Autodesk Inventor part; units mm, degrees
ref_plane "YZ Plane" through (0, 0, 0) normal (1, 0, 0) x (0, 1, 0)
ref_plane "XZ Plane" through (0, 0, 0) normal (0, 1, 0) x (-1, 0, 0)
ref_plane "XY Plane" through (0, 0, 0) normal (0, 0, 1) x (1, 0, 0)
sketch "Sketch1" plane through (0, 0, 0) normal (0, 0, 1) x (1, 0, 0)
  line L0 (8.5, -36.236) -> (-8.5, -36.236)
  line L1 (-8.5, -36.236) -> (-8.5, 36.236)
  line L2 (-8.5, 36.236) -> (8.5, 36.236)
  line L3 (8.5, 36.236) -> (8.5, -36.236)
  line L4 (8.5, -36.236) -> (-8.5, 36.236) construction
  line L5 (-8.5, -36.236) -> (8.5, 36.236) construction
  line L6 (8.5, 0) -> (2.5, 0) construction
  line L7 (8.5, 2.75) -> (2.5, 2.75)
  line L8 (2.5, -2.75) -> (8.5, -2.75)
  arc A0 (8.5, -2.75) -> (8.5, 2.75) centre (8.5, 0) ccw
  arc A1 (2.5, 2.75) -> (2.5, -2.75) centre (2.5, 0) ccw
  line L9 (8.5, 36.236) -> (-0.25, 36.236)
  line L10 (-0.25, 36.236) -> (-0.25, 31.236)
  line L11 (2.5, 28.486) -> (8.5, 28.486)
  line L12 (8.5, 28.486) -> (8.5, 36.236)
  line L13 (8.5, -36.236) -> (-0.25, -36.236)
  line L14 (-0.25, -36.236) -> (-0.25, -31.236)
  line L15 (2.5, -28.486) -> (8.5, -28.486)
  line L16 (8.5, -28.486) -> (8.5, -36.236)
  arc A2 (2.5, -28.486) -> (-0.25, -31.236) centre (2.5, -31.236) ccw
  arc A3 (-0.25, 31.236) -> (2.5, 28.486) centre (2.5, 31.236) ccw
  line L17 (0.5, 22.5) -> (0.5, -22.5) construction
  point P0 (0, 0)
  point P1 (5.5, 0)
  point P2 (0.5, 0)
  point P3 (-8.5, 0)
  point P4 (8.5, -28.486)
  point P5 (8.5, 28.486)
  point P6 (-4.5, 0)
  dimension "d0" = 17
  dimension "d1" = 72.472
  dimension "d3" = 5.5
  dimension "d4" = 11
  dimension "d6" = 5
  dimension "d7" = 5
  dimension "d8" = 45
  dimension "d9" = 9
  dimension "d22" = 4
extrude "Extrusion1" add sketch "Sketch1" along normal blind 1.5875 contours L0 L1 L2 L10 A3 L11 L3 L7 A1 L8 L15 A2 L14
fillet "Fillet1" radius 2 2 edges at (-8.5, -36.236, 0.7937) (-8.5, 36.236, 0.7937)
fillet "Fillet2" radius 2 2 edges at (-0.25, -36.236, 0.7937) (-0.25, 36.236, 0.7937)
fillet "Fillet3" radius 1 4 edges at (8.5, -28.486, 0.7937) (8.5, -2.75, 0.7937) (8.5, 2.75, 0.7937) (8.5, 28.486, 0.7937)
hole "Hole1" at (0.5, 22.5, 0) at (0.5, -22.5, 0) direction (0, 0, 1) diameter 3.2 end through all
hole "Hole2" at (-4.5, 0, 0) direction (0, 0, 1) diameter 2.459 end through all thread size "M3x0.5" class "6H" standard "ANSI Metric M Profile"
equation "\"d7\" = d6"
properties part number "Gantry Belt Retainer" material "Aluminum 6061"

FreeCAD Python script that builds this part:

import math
import FreeCAD as App
import Part
import Sketcher

V = App.Vector


def edges_at(feature, points):
    """Names of the edges that pass closest to the given points."""
    edges = feature.Shape.Edges
    near = lambda p: min(range(len(edges)), key=lambda i: edges[i].distToShape(Part.Vertex(*p))[0])
    return sorted({f"Edge{near(p) + 1}" for p in points})

doc = App.newDocument("Part")
body = doc.addObject("PartDesign::Body", "Body")

sketch1 = doc.addObject("Sketcher::SketchObject", "Sketch")
body.addObject(sketch1)
sketch1.AttachmentSupport = (doc.XY_Plane, [""])
sketch1.MapMode = "FlatFace"
sketch1.addGeometry(Part.LineSegment(V(-8.5, -36.2, 0), V(-0.2, -36.2, 0)), False)
sketch1.addGeometry(Part.LineSegment(V(-0.2, -36.2, 0), V(-0.2, -31.2, 0)), False)
sketch1.addGeometry(Part.ArcOfCircle(Part.Circle(V(2.5, -31.2, 0), V(0, 0, 1), 2.8), math.radians(90), math.radians(180)), False)
sketch1.addGeometry(Part.LineSegment(V(2.5, -28.5, 0), V(8.5, -28.5, 0)), False)
sketch1.addGeometry(Part.LineSegment(V(8.5, -28.5, 0), V(8.5, -2.8, 0)), False)
sketch1.addGeometry(Part.LineSegment(V(8.5, -2.8, 0), V(2.5, -2.8, 0)), False)
sketch1.addGeometry(Part.ArcOfCircle(Part.Circle(V(2.5, 0, 0), V(0, 0, 1), 2.8), math.radians(90), math.radians(270)), False)
sketch1.addGeometry(Part.LineSegment(V(2.5, 2.8, 0), V(8.5, 2.8, 0)), False)
sketch1.addGeometry(Part.LineSegment(V(8.5, 2.8, 0), V(8.5, 28.5, 0)), False)
sketch1.addGeometry(Part.LineSegment(V(8.5, 28.5, 0), V(2.5, 28.5, 0)), False)
sketch1.addGeometry(Part.ArcOfCircle(Part.Circle(V(2.5, 31.2, 0), V(0, 0, 1), 2.8), math.radians(180), math.radians(270)), False)
sketch1.addGeometry(Part.LineSegment(V(-0.2, 31.2, 0), V(-0.2, 36.2, 0)), False)
sketch1.addGeometry(Part.LineSegment(V(-0.2, 36.2, 0), V(-8.5, 36.2, 0)), False)
sketch1.addGeometry(Part.LineSegment(V(-8.5, 36.2, 0), V(-8.5, -36.2, 0)), False)
sketch1.addConstraint(Sketcher.Constraint("Coincident", 0, 2, 1, 1))
sketch1.addConstraint(Sketcher.Constraint("Tangent", 1, 2, 2, 2))
sketch1.addConstraint(Sketcher.Constraint("Tangent", 2, 1, 3, 1))
sketch1.addConstraint(Sketcher.Constraint("Coincident", 3, 2, 4, 1))
sketch1.addConstraint(Sketcher.Constraint("Coincident", 4, 2, 5, 1))
sketch1.addConstraint(Sketcher.Constraint("Tangent", 5, 2, 6, 2))
sketch1.addConstraint(Sketcher.Constraint("Tangent", 6, 1, 7, 1))
sketch1.addConstraint(Sketcher.Constraint("Coincident", 7, 2, 8, 1))
sketch1.addConstraint(Sketcher.Constraint("Coincident", 8, 2, 9, 1))
sketch1.addConstraint(Sketcher.Constraint("Tangent", 9, 2, 10, 2))
sketch1.addConstraint(Sketcher.Constraint("Tangent", 10, 1, 11, 1))
sketch1.addConstraint(Sketcher.Constraint("Coincident", 11, 2, 12, 1))
sketch1.addConstraint(Sketcher.Constraint("Coincident", 12, 2, 13, 1))
sketch1.addConstraint(Sketcher.Constraint("Coincident", 13, 2, 0, 1))
sketch1.addConstraint(Sketcher.Constraint("Horizontal", 0))
sketch1.addConstraint(Sketcher.Constraint("Vertical", 1))
sketch1.addConstraint(Sketcher.Constraint("Horizontal", 3))
sketch1.addConstraint(Sketcher.Constraint("Vertical", 4))
sketch1.addConstraint(Sketcher.Constraint("Horizontal", 5))
sketch1.addConstraint(Sketcher.Constraint("Horizontal", 7))
sketch1.addConstraint(Sketcher.Constraint("Vertical", 8))
sketch1.addConstraint(Sketcher.Constraint("Horizontal", 9))
sketch1.addConstraint(Sketcher.Constraint("Vertical", 11))
sketch1.addConstraint(Sketcher.Constraint("Horizontal", 12))
sketch1.addConstraint(Sketcher.Constraint("Vertical", 13))
sketch1.addConstraint(Sketcher.Constraint("Equal", 2, 6))
sketch1.addConstraint(Sketcher.Constraint("Equal", 6, 10))
sketch1.addConstraint(Sketcher.Constraint("Symmetric", 2, 3, 10, 3, -1))
sketch1.addConstraint(Sketcher.Constraint("Symmetric", 4, 2, 7, 2, -1))
sketch1.addConstraint(Sketcher.Constraint("Vertical", 2, 3, 6, 3))
sketch1.addConstraint(Sketcher.Constraint("Equal", 1, 11))
sketch1.addConstraint(Sketcher.Constraint("DistanceY", 1, 1, 1, 2, 5.0))
sketch1.addConstraint(Sketcher.Constraint("Radius", 2, 2.75))
sketch1.addConstraint(Sketcher.Constraint("DistanceX", 12, 2, 10, 3, 11.0))
sketch1.addConstraint(Sketcher.Constraint("DistanceX", 12, 2, 8, 2, 17.0))
sketch1.addConstraint(Sketcher.Constraint("DistanceY", 13, 2, 13, 1, 72.472))
sketch1.addConstraint(Sketcher.Constraint("DistanceX", -1, 1, 2, 3, 2.5))
pad1 = doc.addObject("PartDesign::Pad", "Pad")
body.addObject(pad1)
pad1.Profile = sketch1
pad1.Length = 1.5875
doc.recompute()

fillet = doc.addObject("PartDesign::Fillet", "Fillet")
body.addObject(fillet)
fillet.Base = (pad1, edges_at(pad1, [(-8.5, -36.236, 0.794), (-8.5, 36.236, 0.794)]))
fillet.Radius = 2
doc.recompute()

fillet2 = doc.addObject("PartDesign::Fillet", "Fillet001")
body.addObject(fillet2)
fillet2.Base = (fillet, edges_at(fillet, [(-0.25, -36.236, 0.794), (-0.25, 36.236, 0.794)]))
fillet2.Radius = 2
doc.recompute()

fillet3 = doc.addObject("PartDesign::Fillet", "Fillet002")
body.addObject(fillet3)
fillet3.Base = (fillet2, edges_at(fillet2, [
    (8.5, -28.486, 0.794),
    (8.5, -2.75, 0.794),
    (8.5, 2.75, 0.794),
    (8.5, 28.486, 0.794),
]))
fillet3.Radius = 1

sketch2 = doc.addObject("Sketcher::SketchObject", "Sketch001")
body.addObject(sketch2)
sketch2.AttachmentSupport = (doc.XY_Plane, [""])
sketch2.MapMode = "FlatFace"
sketch2.addGeometry(Part.Circle(V(0.5, 22.5, 0), V(0, 0, 1), 1.6), False)
sketch2.addGeometry(Part.Circle(V(0.5, -22.5, 0), V(0, 0, 1), 1.6), False)
sketch2.addConstraint(Sketcher.Constraint("Equal", 0, 1))
sketch2.addConstraint(Sketcher.Constraint("Symmetric", 0, 3, 1, 3, -1))
sketch2.addConstraint(Sketcher.Constraint("Diameter", 0, 3.2))
sketch2.addConstraint(Sketcher.Constraint("DistanceY", 1, 3, 0, 3, 45.0))
sketch2.addConstraint(Sketcher.Constraint("DistanceX", -1, 1, 0, 3, 0.5))
doc.recompute()
hole = doc.addObject("PartDesign::Hole", "Hole")
body.addObject(hole)
hole.Profile = sketch2
hole.ThreadType = "None"
hole.Diameter = 3.2
hole.DepthType = "ThroughAll"
hole.Reversed = True

sketch3 = doc.addObject("Sketcher::SketchObject", "Sketch002")
body.addObject(sketch3)
sketch3.AttachmentSupport = (doc.XY_Plane, [""])
sketch3.MapMode = "FlatFace"
sketch3.addGeometry(Part.Circle(V(-4.5, 0, 0), V(0, 0, 1), 1.2), False)
sketch3.addConstraint(Sketcher.Constraint("PointOnObject", 0, 3, -1))
sketch3.addConstraint(Sketcher.Constraint("Diameter", 0, 2.459))
sketch3.addConstraint(Sketcher.Constraint("DistanceX", 0, 3, -1, 1, 4.5))
doc.recompute()
hole2 = doc.addObject("PartDesign::Hole", "Hole001")
body.addObject(hole2)
hole2.Profile = sketch3
hole2.ThreadType = "None"
hole2.Diameter = 2.459
hole2.DepthType = "ThroughAll"
hole2.Reversed = True

doc.recompute()
